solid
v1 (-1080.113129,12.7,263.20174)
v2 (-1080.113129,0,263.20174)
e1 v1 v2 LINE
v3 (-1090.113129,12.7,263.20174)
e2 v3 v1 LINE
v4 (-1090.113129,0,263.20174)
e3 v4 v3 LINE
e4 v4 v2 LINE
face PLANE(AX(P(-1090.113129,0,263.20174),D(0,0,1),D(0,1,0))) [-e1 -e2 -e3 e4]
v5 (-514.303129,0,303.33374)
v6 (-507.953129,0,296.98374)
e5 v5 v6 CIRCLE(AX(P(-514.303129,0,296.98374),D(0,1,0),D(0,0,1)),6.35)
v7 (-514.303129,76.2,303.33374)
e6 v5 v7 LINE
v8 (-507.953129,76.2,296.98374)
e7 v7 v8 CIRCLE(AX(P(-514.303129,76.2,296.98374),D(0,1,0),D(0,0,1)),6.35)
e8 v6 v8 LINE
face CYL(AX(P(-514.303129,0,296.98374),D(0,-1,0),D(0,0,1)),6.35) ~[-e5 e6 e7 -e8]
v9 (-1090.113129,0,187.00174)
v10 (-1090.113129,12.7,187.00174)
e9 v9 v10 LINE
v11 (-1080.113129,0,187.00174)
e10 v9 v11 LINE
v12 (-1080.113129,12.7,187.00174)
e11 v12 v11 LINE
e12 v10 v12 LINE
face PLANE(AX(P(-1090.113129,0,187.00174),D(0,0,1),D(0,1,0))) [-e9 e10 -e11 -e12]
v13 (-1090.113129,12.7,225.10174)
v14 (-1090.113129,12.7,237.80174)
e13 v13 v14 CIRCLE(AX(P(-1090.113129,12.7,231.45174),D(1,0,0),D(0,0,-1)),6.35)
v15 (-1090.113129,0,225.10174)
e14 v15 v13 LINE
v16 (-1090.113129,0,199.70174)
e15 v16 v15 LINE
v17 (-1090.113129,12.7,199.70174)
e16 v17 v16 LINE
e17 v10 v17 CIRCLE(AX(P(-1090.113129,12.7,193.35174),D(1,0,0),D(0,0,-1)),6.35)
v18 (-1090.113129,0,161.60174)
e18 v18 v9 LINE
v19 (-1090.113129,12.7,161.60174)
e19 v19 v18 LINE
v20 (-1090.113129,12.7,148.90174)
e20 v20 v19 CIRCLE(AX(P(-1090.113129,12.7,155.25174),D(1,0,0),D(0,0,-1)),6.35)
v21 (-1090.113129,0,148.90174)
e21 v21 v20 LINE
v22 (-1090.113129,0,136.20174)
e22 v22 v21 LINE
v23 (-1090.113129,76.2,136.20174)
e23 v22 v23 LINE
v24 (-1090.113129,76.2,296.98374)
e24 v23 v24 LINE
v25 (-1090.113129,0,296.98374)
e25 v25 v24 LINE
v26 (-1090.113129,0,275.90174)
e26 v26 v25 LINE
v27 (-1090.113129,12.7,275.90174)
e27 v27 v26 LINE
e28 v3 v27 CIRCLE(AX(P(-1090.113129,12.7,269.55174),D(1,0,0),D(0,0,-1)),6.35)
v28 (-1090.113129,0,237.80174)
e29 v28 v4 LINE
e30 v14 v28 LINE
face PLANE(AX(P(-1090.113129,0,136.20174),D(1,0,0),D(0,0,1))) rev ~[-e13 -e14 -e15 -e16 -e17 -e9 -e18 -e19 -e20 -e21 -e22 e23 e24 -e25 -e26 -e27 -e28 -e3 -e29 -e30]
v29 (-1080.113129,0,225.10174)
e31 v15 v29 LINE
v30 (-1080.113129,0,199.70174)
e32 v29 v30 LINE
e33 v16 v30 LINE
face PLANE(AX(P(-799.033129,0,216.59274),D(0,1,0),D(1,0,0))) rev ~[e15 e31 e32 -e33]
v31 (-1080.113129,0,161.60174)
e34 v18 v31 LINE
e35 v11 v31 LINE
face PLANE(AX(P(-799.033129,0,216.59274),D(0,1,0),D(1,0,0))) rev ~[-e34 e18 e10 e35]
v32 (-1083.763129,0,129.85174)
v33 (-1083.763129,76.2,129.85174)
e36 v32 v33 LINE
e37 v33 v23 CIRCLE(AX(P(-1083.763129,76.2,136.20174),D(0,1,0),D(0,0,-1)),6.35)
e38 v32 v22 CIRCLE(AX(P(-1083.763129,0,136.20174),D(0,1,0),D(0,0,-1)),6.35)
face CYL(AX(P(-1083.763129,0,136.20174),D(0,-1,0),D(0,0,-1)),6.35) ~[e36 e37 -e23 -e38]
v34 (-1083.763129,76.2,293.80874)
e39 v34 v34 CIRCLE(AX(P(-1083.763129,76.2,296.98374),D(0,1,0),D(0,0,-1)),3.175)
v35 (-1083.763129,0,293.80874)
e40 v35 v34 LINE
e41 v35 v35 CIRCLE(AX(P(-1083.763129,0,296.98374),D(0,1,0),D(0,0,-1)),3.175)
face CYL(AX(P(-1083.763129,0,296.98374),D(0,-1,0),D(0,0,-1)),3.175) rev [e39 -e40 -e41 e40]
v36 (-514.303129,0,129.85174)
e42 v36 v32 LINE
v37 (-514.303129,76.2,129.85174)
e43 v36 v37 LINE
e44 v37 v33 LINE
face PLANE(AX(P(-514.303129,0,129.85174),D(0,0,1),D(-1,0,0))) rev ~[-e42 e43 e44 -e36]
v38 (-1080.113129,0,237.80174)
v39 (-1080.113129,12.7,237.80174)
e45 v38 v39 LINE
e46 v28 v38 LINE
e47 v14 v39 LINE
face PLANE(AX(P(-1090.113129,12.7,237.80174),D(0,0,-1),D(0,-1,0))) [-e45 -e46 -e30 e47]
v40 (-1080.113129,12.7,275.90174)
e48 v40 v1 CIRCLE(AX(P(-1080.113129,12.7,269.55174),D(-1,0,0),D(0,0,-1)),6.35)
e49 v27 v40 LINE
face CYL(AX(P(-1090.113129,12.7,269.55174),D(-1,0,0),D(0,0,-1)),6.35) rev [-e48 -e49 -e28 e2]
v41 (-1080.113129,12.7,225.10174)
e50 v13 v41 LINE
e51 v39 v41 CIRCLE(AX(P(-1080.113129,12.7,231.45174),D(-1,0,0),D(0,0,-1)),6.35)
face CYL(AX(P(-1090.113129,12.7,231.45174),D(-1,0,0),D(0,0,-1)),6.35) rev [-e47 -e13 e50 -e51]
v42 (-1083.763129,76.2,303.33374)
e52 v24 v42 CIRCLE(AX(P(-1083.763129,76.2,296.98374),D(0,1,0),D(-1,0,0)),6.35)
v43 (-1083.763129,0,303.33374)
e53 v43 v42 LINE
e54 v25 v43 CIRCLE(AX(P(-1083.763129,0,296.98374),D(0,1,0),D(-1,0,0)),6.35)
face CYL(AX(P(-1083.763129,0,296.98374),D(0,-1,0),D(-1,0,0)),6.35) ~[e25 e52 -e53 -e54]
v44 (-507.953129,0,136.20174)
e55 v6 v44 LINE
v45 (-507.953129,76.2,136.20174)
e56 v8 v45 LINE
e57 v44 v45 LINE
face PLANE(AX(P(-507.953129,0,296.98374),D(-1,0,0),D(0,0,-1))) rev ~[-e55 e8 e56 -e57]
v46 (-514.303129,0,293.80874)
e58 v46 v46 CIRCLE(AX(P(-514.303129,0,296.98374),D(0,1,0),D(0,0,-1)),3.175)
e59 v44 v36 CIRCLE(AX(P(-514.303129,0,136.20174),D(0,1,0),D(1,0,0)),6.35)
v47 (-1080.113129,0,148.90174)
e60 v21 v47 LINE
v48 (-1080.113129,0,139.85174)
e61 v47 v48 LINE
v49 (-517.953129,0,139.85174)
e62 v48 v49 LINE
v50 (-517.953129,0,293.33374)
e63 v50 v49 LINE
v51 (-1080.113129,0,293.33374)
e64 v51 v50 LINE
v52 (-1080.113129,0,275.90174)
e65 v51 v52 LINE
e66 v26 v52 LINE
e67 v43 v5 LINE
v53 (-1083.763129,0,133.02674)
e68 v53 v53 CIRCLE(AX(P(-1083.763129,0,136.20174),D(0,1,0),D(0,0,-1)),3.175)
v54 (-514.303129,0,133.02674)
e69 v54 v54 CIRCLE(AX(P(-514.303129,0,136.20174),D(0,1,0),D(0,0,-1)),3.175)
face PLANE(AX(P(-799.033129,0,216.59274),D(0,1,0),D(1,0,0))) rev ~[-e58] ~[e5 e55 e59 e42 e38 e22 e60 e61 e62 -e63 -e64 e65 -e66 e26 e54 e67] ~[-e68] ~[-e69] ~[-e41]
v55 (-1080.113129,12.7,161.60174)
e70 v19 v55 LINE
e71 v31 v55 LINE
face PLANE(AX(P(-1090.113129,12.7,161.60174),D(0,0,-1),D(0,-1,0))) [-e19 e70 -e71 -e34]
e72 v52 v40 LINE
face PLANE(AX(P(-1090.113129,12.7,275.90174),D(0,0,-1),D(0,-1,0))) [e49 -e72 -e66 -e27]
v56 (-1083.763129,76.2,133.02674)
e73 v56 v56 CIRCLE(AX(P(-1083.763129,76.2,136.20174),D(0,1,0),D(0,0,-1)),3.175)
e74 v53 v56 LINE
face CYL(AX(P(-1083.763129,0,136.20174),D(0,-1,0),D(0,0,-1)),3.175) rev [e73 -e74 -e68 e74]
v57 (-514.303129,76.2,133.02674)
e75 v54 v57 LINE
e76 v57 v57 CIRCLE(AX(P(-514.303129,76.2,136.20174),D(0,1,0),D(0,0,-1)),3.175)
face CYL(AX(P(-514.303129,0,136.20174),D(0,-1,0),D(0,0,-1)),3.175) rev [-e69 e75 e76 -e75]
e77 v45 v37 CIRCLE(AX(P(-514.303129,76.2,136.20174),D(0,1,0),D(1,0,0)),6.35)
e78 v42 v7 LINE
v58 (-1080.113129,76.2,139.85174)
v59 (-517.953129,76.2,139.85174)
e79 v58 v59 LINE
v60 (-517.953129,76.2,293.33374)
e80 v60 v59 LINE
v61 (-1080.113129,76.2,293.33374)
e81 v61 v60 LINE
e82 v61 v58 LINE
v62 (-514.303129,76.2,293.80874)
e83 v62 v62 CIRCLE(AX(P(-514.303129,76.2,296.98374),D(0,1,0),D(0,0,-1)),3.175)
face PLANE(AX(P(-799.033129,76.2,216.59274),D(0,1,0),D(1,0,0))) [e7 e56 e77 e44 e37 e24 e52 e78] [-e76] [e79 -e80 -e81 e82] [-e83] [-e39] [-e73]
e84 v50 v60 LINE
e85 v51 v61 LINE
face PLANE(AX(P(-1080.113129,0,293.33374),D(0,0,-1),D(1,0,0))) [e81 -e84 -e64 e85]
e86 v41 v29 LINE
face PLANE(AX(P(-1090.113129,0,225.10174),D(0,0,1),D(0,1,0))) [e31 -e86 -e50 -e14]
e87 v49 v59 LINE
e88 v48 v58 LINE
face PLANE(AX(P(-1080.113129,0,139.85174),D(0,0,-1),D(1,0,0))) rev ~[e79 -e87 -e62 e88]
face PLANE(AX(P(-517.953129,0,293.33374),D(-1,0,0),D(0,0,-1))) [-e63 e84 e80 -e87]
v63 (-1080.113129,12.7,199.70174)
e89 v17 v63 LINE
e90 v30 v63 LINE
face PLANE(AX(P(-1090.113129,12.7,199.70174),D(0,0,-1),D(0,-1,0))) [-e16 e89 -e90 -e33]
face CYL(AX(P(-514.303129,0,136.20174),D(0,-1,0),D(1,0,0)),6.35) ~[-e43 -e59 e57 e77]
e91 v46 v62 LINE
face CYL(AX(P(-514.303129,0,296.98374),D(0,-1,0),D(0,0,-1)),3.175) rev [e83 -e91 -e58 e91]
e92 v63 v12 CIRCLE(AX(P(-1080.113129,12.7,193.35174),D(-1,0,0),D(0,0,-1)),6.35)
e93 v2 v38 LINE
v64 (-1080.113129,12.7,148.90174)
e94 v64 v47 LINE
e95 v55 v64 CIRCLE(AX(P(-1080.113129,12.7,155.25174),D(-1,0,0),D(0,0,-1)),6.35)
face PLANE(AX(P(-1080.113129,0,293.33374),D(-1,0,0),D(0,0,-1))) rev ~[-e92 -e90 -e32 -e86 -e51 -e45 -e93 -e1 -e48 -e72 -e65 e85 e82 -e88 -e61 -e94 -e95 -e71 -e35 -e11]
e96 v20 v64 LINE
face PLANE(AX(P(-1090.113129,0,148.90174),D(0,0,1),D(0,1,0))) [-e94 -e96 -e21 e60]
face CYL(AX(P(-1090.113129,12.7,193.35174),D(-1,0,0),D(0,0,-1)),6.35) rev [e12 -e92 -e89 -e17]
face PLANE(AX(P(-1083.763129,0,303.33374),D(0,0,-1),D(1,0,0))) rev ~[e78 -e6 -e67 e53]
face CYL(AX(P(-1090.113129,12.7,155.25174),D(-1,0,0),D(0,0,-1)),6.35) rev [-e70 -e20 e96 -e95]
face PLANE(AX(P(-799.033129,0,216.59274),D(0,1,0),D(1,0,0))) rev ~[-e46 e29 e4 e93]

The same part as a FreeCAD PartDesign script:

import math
import FreeCAD as App
import Part
import Sketcher
Q = App.Units.Quantity


def add_polygon(sketch, points):
    """Adds a closed chain of lines whose ends are joined by coincident constraints."""
    first, n = sketch.GeometryCount, len(points)
    for a, b in zip(points, points[1:] + points[:1]):
        sketch.addGeometry(Part.LineSegment(App.Vector(*a, 0), App.Vector(*b, 0)), False)
    for i in range(n):
        sketch.addConstraint(Sketcher.Constraint("Coincident", first + i, 2, first + (i + 1) % n, 1))

doc = App.newDocument("Part")
body = doc.addObject("PartDesign::Body", "Body")

# Sketch on XZ plane
sketch1 = body.newObject("Sketcher::SketchObject", "Sketch")
sketch1.AttachmentSupport = (doc.getObject("XZ_Plane"), [""])
sketch1.MapMode = "FlatFace"
sketch1.addGeometry(Part.LineSegment(App.Vector(-514.3, 129.9, 0), App.Vector(-1083.8, 129.9, 0)), False)  # 0
sketch1.addGeometry(Part.ArcOfCircle(Part.Circle(App.Vector(-1083.8, 136.2, 0), App.Vector(0, 0, 1), 6.3), math.radians(180), math.radians(270)), False)  # 1
sketch1.addGeometry(Part.LineSegment(App.Vector(-1090.1, 136.2, 0), App.Vector(-1090.1, 297, 0)), False)  # 2
sketch1.addGeometry(Part.ArcOfCircle(Part.Circle(App.Vector(-1083.8, 297, 0), App.Vector(0, 0, 1), 6.3), math.radians(90), math.radians(180)), False)  # 3
sketch1.addGeometry(Part.LineSegment(App.Vector(-1083.8, 303.3, 0), App.Vector(-514.3, 303.3, 0)), False)  # 4
sketch1.addGeometry(Part.ArcOfCircle(Part.Circle(App.Vector(-514.3, 297, 0), App.Vector(0, 0, 1), 6.4), math.radians(0), math.radians(90)), False)  # 5
sketch1.addGeometry(Part.LineSegment(App.Vector(-508, 297, 0), App.Vector(-508, 136.2, 0)), False)  # 6
sketch1.addGeometry(Part.ArcOfCircle(Part.Circle(App.Vector(-514.3, 136.2, 0), App.Vector(0, 0, 1), 6.3), math.radians(-90), math.radians(0)), False)  # 7
sketch1.addGeometry(Part.Circle(App.Vector(-1083.8, 297, 0), App.Vector(0, 0, 1), 3.2), False)  # 8
sketch1.addGeometry(Part.Circle(App.Vector(-514.3, 297, 0), App.Vector(0, 0, 1), 3.2), False)  # 9
add_polygon(sketch1, [(-518, 293.3), (-1080.1, 293.3), (-1080.1, 139.9), (-518, 139.9)])  # lines 10-13
sketch1.addGeometry(Part.Circle(App.Vector(-1083.8, 136.2, 0), App.Vector(0, 0, 1), 3.2), False)  # 14
sketch1.addGeometry(Part.Circle(App.Vector(-514.3, 136.2, 0), App.Vector(0, 0, 1), 3.2), False)  # 15
sketch1.addConstraint([
    Sketcher.Constraint("Tangent", 0, 2, 1, 2),
    Sketcher.Constraint("Tangent", 1, 1, 2, 1),
    Sketcher.Constraint("Tangent", 2, 2, 3, 2),
    Sketcher.Constraint("Tangent", 3, 1, 4, 1),
    Sketcher.Constraint("Tangent", 4, 2, 5, 2),
    Sketcher.Constraint("Tangent", 5, 1, 6, 1),
    Sketcher.Constraint("Tangent", 6, 2, 7, 2),
    Sketcher.Constraint("Tangent", 7, 1, 0, 1),
    Sketcher.Constraint("Horizontal", 0),
    Sketcher.Constraint("Vertical", 2),
    Sketcher.Constraint("Horizontal", 4),
    Sketcher.Constraint("Vertical", 6),
    Sketcher.Constraint("Horizontal", 10),
    Sketcher.Constraint("Vertical", 11),
    Sketcher.Constraint("Horizontal", 12),
    Sketcher.Constraint("Vertical", 13),
    Sketcher.Constraint("Coincident", 8, 3, 3, 3),
    Sketcher.Constraint("Coincident", 9, 3, 5, 3),
    Sketcher.Constraint("Coincident", 14, 3, 1, 3),
    Sketcher.Constraint("Coincident", 15, 3, 7, 3),
    Sketcher.Constraint("Equal", 1, 3),
    Sketcher.Constraint("Equal", 3, 5),
    Sketcher.Constraint("Equal", 5, 7),
    Sketcher.Constraint("Equal", 8, 9),
    Sketcher.Constraint("Equal", 9, 14),
    Sketcher.Constraint("Equal", 14, 15),
    Sketcher.Constraint("Diameter", 8, Q("0.25 in")),
    Sketcher.Constraint("Radius", 1, Q("0.25 in")),
    Sketcher.Constraint("DistanceY", 2, 1, 2, 2, Q("6.33 in")),
    Sketcher.Constraint("DistanceX", 0, 2, 0, 1, 569.46),
    Sketcher.Constraint("DistanceX", 10, 2, 10, 1, 562.16),
    Sketcher.Constraint("DistanceY", 11, 2, 11, 1, 153.482),
    Sketcher.Constraint("DistanceX", 3, 3, 10, 2, 3.65),
    Sketcher.Constraint("DistanceY", 10, 2, 3, 3, 3.65),
    Sketcher.Constraint("DistanceX", 1, 3, -1, 1, 1083.763129),
    Sketcher.Constraint("DistanceY", -1, 1, 1, 3, 136.20174),
])
pad1 = body.newObject("PartDesign::Pad", "Pad")
pad1.Profile = sketch1
pad1.Length = Q("3 in")
pad1.Reversed = True

# Sketch on YZ plane
sketch2 = body.newObject("Sketcher::SketchObject", "Sketch001")
sketch2.AttachmentSupport = (doc.getObject("YZ_Plane"), [""])
sketch2.MapMode = "FlatFace"
sketch2.AttachmentOffset = App.Placement(App.Vector(0, 0, -1090.113129), App.Rotation())
sketch2.addGeometry([
    Part.LineSegment(App.Vector(0, 149, 0), App.Vector(0, 162, 0)),
    Part.LineSegment(App.Vector(0, 162, 0), App.Vector(13, 162, 0)),
    Part.ArcOfCircle(Part.Circle(App.Vector(13, 155, 0), App.Vector(0, 0, 1), 6), math.radians(-90), math.radians(90)),
    Part.LineSegment(App.Vector(13, 149, 0), App.Vector(0, 149, 0)),
], False)
sketch2.addConstraint([
    Sketcher.Constraint("Coincident", 0, 2, 1, 1),
    Sketcher.Constraint("Tangent", 1, 2, 2, 2),
    Sketcher.Constraint("Tangent", 2, 1, 3, 1),
    Sketcher.Constraint("Coincident", 3, 2, 0, 1),
    Sketcher.Constraint("Vertical", 0),
    Sketcher.Constraint("Horizontal", 1),
    Sketcher.Constraint("Horizontal", 3),
    Sketcher.Constraint("PointOnObject", 0, 2, -2),
    Sketcher.Constraint("Equal", 3, 0),
    Sketcher.Constraint("Radius", 2, Q("0.25 in")),
    Sketcher.Constraint("DistanceY", -1, 1, 2, 3, 155.25174),
])
pocket1 = body.newObject("PartDesign::Pocket", "Pocket")
pocket1.Profile = sketch2
pocket1.Type = "UpToFirst"
pocket1.Reversed = True

# Sketch on YZ plane
sketch3 = body.newObject("Sketcher::SketchObject", "Sketch002")
sketch3.AttachmentSupport = (doc.getObject("YZ_Plane"), [""])
sketch3.MapMode = "FlatFace"
sketch3.AttachmentOffset = App.Placement(App.Vector(0, 0, -1090.113129), App.Rotation())
sketch3.addGeometry([
    Part.LineSegment(App.Vector(0, 187, 0), App.Vector(0, 200, 0)),
    Part.LineSegment(App.Vector(0, 200, 0), App.Vector(13, 200, 0)),
    Part.ArcOfCircle(Part.Circle(App.Vector(13, 193, 0), App.Vector(0, 0, 1), 6), math.radians(-90), math.radians(90)),
    Part.LineSegment(App.Vector(13, 187, 0), App.Vector(0, 187, 0)),
], False)
sketch3.addConstraint([
    Sketcher.Constraint("Coincident", 0, 2, 1, 1),
    Sketcher.Constraint("Tangent", 1, 2, 2, 2),
    Sketcher.Constraint("Tangent", 2, 1, 3, 1),
    Sketcher.Constraint("Coincident", 3, 2, 0, 1),
    Sketcher.Constraint("Vertical", 0),
    Sketcher.Constraint("Horizontal", 1),
    Sketcher.Constraint("Horizontal", 3),
    Sketcher.Constraint("PointOnObject", 0, 2, -2),
    Sketcher.Constraint("Equal", 3, 0),
    Sketcher.Constraint("Radius", 2, Q("0.25 in")),
    Sketcher.Constraint("DistanceY", -1, 1, 2, 3, 193.35174),
])
pocket2 = body.newObject("PartDesign::Pocket", "Pocket001")
pocket2.Profile = sketch3
pocket2.Type = "UpToFirst"
pocket2.Reversed = True

# Sketch on YZ plane
sketch4 = body.newObject("Sketcher::SketchObject", "Sketch003")
sketch4.AttachmentSupport = (doc.getObject("YZ_Plane"), [""])
sketch4.MapMode = "FlatFace"
sketch4.AttachmentOffset = App.Placement(App.Vector(0, 0, -1090.113129), App.Rotation())
sketch4.addGeometry([
    Part.LineSegment(App.Vector(0, 225, 0), App.Vector(0, 238, 0)),
    Part.LineSegment(App.Vector(0, 238, 0), App.Vector(13, 238, 0)),
    Part.ArcOfCircle(Part.Circle(App.Vector(13, 231, 0), App.Vector(0, 0, 1), 6), math.radians(-90), math.radians(90)),
    Part.LineSegment(App.Vector(13, 225, 0), App.Vector(0, 225, 0)),
], False)
sketch4.addConstraint([
    Sketcher.Constraint("Coincident", 0, 2, 1, 1),
    Sketcher.Constraint("Tangent", 1, 2, 2, 2),
    Sketcher.Constraint("Tangent", 2, 1, 3, 1),
    Sketcher.Constraint("Coincident", 3, 2, 0, 1),
    Sketcher.Constraint("Vertical", 0),
    Sketcher.Constraint("Horizontal", 1),
    Sketcher.Constraint("Horizontal", 3),
    Sketcher.Constraint("PointOnObject", 0, 2, -2),
    Sketcher.Constraint("Equal", 3, 0),
    Sketcher.Constraint("Radius", 2, Q("0.25 in")),
    Sketcher.Constraint("DistanceY", -1, 1, 2, 3, 231.45174),
])
pocket3 = body.newObject("PartDesign::Pocket", "Pocket002")
pocket3.Profile = sketch4
pocket3.Type = "UpToFirst"
pocket3.Reversed = True

# Sketch on YZ plane
sketch5 = body.newObject("Sketcher::SketchObject", "Sketch004")
sketch5.AttachmentSupport = (doc.getObject("YZ_Plane"), [""])
sketch5.MapMode = "FlatFace"
sketch5.AttachmentOffset = App.Placement(App.Vector(0, 0, -1090.113129), App.Rotation())
sketch5.addGeometry([
    Part.LineSegment(App.Vector(0, 263, 0), App.Vector(0, 276, 0)),
    Part.LineSegment(App.Vector(0, 276, 0), App.Vector(13, 276, 0)),
    Part.ArcOfCircle(Part.Circle(App.Vector(13, 270, 0), App.Vector(0, 0, 1), 6), math.radians(-90), math.radians(90)),
    Part.LineSegment(App.Vector(13, 263, 0), App.Vector(0, 263, 0)),
], False)
sketch5.addConstraint([
    Sketcher.Constraint("Coincident", 0, 2, 1, 1),
    Sketcher.Constraint("Tangent", 1, 2, 2, 2),
    Sketcher.Constraint("Tangent", 2, 1, 3, 1),
    Sketcher.Constraint("Coincident", 3, 2, 0, 1),
    Sketcher.Constraint("Vertical", 0),
    Sketcher.Constraint("Horizontal", 1),
    Sketcher.Constraint("Horizontal", 3),
    Sketcher.Constraint("PointOnObject", 0, 2, -2),
    Sketcher.Constraint("Equal", 3, 0),
    Sketcher.Constraint("Radius", 2, Q("0.25 in")),
    Sketcher.Constraint("DistanceY", -1, 1, 2, 3, 269.55174),
])
pocket4 = body.newObject("PartDesign::Pocket", "Pocket003")
pocket4.Profile = sketch5
pocket4.Type = "UpToFirst"
pocket4.Reversed = True

doc.recompute()
